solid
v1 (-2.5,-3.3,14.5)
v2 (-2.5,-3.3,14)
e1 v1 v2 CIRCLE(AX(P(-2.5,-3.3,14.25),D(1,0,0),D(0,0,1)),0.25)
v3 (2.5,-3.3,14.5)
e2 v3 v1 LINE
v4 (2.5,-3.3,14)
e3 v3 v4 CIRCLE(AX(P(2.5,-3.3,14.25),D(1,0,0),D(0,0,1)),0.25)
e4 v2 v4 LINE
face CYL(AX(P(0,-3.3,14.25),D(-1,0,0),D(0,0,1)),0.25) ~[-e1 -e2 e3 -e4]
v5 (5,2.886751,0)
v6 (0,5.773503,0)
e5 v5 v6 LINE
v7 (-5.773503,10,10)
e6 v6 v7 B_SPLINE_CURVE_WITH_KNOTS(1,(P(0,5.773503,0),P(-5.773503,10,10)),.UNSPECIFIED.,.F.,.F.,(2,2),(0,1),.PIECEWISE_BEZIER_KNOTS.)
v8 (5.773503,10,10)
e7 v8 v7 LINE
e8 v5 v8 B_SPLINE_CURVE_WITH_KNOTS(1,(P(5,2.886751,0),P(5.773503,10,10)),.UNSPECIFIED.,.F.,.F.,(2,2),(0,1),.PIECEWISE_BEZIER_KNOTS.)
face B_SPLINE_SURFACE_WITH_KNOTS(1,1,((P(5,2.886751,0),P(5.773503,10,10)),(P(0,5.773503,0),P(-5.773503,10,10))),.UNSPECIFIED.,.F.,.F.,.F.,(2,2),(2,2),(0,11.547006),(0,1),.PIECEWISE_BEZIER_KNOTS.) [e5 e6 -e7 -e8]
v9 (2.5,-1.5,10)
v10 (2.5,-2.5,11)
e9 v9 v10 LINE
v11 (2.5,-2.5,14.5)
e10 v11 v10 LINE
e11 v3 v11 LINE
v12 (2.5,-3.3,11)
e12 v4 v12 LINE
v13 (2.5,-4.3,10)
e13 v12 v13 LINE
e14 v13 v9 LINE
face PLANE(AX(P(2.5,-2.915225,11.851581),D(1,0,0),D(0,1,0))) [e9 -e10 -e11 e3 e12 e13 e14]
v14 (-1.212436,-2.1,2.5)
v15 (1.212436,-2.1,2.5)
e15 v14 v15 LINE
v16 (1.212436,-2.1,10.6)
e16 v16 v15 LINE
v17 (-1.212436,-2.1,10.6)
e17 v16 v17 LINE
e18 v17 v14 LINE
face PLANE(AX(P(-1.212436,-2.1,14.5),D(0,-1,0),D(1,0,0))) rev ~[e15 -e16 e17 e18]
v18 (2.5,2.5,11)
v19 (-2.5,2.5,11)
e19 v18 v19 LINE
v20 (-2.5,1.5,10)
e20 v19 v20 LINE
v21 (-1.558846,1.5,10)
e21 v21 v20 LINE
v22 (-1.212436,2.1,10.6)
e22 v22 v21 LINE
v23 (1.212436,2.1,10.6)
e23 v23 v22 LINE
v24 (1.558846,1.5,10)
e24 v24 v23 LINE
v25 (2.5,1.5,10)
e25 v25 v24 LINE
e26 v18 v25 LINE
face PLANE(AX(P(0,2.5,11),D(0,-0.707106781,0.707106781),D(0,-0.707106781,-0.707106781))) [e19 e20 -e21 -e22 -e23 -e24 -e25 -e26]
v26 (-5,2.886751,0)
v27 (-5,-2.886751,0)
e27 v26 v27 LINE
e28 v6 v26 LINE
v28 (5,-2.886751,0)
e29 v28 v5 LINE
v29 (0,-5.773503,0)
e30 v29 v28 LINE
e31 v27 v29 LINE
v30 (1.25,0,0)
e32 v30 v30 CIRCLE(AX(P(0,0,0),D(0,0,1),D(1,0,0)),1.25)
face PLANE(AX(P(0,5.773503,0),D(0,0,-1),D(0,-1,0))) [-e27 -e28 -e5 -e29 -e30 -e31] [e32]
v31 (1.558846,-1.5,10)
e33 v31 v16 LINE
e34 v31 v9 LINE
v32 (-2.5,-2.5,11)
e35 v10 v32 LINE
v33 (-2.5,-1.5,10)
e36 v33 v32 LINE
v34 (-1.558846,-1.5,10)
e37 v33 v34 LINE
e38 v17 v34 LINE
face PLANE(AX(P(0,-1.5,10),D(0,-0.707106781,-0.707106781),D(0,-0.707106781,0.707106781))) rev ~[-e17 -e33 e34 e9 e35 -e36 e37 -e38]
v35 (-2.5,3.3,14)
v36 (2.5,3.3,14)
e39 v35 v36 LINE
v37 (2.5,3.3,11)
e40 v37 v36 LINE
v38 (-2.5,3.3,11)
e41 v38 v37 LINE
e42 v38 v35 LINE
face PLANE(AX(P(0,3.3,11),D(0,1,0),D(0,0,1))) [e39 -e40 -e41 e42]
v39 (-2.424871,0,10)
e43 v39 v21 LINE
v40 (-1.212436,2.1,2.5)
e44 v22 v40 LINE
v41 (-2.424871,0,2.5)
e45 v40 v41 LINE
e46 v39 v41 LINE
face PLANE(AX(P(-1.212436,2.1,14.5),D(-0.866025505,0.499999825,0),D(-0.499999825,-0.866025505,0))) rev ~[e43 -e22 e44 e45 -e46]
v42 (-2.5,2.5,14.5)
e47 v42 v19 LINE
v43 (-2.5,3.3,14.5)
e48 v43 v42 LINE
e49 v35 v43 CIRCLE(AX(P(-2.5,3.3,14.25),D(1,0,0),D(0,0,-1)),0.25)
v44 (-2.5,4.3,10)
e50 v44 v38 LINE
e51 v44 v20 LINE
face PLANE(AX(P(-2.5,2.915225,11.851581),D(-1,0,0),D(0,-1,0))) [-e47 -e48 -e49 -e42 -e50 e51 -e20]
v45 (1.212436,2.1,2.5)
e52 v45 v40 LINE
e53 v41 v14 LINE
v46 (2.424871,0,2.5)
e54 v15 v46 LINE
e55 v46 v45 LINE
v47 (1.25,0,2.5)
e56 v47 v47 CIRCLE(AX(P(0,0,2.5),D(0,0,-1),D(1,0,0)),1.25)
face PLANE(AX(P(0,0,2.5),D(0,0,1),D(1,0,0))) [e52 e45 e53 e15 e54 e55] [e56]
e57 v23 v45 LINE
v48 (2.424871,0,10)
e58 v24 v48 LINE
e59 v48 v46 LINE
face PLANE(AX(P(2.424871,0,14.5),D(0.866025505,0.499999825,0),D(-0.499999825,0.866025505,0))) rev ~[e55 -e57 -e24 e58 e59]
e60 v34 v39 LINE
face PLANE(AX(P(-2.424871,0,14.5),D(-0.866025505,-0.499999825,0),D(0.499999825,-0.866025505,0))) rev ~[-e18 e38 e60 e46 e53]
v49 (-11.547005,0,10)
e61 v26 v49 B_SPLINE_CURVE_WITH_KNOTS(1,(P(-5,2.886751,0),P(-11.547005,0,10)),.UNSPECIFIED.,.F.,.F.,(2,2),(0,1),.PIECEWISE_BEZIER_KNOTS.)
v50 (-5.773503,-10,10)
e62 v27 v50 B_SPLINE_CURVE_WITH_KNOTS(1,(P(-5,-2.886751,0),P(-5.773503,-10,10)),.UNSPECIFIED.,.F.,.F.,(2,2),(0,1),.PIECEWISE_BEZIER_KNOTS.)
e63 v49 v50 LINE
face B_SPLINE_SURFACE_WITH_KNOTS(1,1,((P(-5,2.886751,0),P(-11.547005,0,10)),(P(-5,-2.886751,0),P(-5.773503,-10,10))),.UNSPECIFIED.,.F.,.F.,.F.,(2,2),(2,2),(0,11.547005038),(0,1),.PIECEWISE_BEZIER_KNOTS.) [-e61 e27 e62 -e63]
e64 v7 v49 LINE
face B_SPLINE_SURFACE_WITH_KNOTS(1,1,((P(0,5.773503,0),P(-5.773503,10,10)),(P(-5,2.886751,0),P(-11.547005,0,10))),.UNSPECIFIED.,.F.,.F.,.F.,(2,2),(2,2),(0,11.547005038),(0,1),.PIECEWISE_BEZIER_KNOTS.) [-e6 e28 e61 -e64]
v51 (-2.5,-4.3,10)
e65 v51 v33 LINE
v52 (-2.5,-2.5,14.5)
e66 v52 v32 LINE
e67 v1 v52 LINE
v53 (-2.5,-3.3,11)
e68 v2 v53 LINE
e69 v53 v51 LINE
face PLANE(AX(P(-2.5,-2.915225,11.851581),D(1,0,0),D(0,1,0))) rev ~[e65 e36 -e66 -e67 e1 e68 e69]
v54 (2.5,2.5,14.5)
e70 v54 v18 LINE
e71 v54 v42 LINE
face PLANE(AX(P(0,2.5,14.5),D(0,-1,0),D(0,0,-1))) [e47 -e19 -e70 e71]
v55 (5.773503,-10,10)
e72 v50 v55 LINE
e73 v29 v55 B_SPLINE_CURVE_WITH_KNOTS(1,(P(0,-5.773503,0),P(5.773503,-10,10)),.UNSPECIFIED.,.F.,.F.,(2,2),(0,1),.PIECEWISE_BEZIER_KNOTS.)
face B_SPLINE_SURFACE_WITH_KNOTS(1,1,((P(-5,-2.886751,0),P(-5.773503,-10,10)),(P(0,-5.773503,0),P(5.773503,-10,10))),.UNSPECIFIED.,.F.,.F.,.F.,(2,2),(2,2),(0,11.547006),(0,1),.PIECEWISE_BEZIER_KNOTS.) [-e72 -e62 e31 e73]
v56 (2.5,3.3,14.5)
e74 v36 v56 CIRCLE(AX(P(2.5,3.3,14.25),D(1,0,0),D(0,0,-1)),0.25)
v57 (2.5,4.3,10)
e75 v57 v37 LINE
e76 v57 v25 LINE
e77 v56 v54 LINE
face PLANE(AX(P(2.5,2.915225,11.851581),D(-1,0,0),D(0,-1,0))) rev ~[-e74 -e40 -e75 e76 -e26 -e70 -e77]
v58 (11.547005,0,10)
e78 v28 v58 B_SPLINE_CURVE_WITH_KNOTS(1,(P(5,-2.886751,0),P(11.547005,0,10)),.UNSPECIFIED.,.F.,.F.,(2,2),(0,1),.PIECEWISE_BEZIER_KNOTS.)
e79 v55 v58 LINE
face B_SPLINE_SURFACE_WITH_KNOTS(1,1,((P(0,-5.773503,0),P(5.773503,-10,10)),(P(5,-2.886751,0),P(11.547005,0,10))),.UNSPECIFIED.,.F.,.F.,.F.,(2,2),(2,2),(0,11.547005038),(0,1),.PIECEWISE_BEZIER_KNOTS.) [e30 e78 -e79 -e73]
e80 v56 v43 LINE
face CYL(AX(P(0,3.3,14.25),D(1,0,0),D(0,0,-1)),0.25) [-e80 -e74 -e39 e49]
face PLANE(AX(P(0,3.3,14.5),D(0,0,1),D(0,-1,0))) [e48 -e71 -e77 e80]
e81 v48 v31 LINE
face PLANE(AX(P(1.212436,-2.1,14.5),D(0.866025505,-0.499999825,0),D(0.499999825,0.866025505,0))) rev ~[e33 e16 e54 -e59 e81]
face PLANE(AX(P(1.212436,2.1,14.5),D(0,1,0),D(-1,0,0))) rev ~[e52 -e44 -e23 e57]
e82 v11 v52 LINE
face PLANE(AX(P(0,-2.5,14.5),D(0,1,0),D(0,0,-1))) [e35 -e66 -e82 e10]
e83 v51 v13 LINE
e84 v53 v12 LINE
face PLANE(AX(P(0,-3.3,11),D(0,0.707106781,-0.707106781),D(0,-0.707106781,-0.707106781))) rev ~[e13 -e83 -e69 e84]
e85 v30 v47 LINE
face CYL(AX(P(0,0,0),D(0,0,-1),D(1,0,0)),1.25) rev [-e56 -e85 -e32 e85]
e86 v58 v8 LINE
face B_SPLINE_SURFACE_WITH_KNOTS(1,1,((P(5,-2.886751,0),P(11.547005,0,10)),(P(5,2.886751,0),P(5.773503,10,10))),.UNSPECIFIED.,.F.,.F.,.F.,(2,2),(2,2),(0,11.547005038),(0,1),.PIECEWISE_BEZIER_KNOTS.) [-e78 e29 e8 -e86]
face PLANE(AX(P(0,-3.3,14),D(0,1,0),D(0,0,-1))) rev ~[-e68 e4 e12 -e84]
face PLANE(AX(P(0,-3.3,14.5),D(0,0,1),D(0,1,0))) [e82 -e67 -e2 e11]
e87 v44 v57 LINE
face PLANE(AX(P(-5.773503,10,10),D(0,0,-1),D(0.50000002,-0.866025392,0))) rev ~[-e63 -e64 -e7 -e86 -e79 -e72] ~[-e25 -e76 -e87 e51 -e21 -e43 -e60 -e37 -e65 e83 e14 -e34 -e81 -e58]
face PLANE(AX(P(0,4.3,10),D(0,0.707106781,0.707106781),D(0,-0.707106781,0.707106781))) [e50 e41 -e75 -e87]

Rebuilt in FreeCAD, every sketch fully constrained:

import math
import FreeCAD as App
import Part
import Sketcher
from FreeCAD import Vector
Q = App.Units.Quantity

doc = App.newDocument("Part")
body = doc.addObject("PartDesign::Body", "Body")

# Sketch on XY plane
sketch1 = body.newObject("Sketcher::SketchObject", "Sketch")
sketch1.AttachmentSupport = (doc.getObject("XY_Plane"), [""])
sketch1.MapMode = "FlatFace"
sketch1.addGeometry(Part.LineSegment(Vector(0, 5.773503, 0), Vector(-5, 2.886751, 0)), False)
sketch1.addGeometry(Part.LineSegment(Vector(-5, 2.886751, 0), Vector(-5, -2.886751, 0)), False)
sketch1.addGeometry(Part.LineSegment(Vector(-5, -2.886751, 0), Vector(0, -5.773503, 0)), False)
sketch1.addGeometry(Part.LineSegment(Vector(0, -5.773503, 0), Vector(5, -2.886751, 0)), False)
sketch1.addGeometry(Part.LineSegment(Vector(5, -2.886751, 0), Vector(5, 2.886751, 0)), False)
sketch1.addGeometry(Part.LineSegment(Vector(5, 2.886751, 0), Vector(0, 5.773503, 0)), False)
sketch1.addConstraint(Sketcher.Constraint("Coincident", 0, 2, 1, 1))
sketch1.addConstraint(Sketcher.Constraint("Coincident", 1, 2, 2, 1))
sketch1.addConstraint(Sketcher.Constraint("Coincident", 2, 2, 3, 1))
sketch1.addConstraint(Sketcher.Constraint("Coincident", 3, 2, 4, 1))
sketch1.addConstraint(Sketcher.Constraint("Coincident", 4, 2, 5, 1))
sketch1.addConstraint(Sketcher.Constraint("Coincident", 5, 2, 0, 1))
sketch1.addConstraint(Sketcher.Constraint("Vertical", 1))
sketch1.addConstraint(Sketcher.Constraint("Vertical", 4))
sketch1.addConstraint(Sketcher.Constraint("Symmetric", 0, 2, 3, 2, -1, 1))
sketch1.addConstraint(Sketcher.Constraint("Symmetric", 2, 2, 5, 2, -1, 1))
sketch1.addConstraint(Sketcher.Constraint("PointOnObject", 2, 2, -2))
sketch1.addConstraint(Sketcher.Constraint("Parallel", 2, 5))
sketch1.addConstraint(Sketcher.Constraint("Horizontal", 1, 2, 3, 2))
sketch1.addConstraint(Sketcher.Constraint("Angle", 0, Q("-149.999994 deg")))
sketch1.addConstraint(Sketcher.Constraint("DistanceX", 0, 2, -1, 1, 5.0))
sketch1.addConstraint(Sketcher.Constraint("DistanceY", 1, 2, 1, 1, 5.773502))

# Sketch on XY plane
sketch2 = body.newObject("Sketcher::SketchObject", "Sketch001")
sketch2.AttachmentSupport = (doc.getObject("XY_Plane"), [""])
sketch2.MapMode = "FlatFace"
sketch2.AttachmentOffset = App.Placement(Vector(0, 0, 10), App.Rotation())
sketch2.addGeometry(Part.LineSegment(Vector(-5.773503, 10, 0), Vector(-11.547005, 0, 0)), False)
sketch2.addGeometry(Part.LineSegment(Vector(-11.547005, 0, 0), Vector(-5.773503, -10, 0)), False)
sketch2.addGeometry(Part.LineSegment(Vector(-5.773503, -10, 0), Vector(5.773503, -10, 0)), False)
sketch2.addGeometry(Part.LineSegment(Vector(5.773503, -10, 0), Vector(11.547005, 0, 0)), False)
sketch2.addGeometry(Part.LineSegment(Vector(11.547005, 0, 0), Vector(5.773503, 10, 0)), False)
sketch2.addGeometry(Part.LineSegment(Vector(5.773503, 10, 0), Vector(-5.773503, 10, 0)), False)
sketch2.addConstraint(Sketcher.Constraint("Coincident", 0, 2, 1, 1))
sketch2.addConstraint(Sketcher.Constraint("Coincident", 1, 2, 2, 1))
sketch2.addConstraint(Sketcher.Constraint("Coincident", 2, 2, 3, 1))
sketch2.addConstraint(Sketcher.Constraint("Coincident", 3, 2, 4, 1))
sketch2.addConstraint(Sketcher.Constraint("Coincident", 4, 2, 5, 1))
sketch2.addConstraint(Sketcher.Constraint("Coincident", 5, 2, 0, 1))
sketch2.addConstraint(Sketcher.Constraint("Horizontal", 2))
sketch2.addConstraint(Sketcher.Constraint("Horizontal", 5))
sketch2.addConstraint(Sketcher.Constraint("Symmetric", 0, 2, 3, 2, -1, 1))
sketch2.addConstraint(Sketcher.Constraint("Symmetric", 1, 2, 4, 2, -1, 1))
sketch2.addConstraint(Sketcher.Constraint("PointOnObject", 0, 2, -1))
sketch2.addConstraint(Sketcher.Constraint("Parallel", 0, 3))
sketch2.addConstraint(Sketcher.Constraint("Vertical", 2, 2, 4, 2))
sketch2.addConstraint(Sketcher.Constraint("Angle", 0, Q("-119.999997 deg")))
sketch2.addConstraint(Sketcher.Constraint("DistanceY", 1, 2, -1, 1, 10.0))
sketch2.addConstraint(Sketcher.Constraint("DistanceX", 2, 1, 2, 2, 11.547006))

additiveloft = body.newObject("PartDesign::AdditiveLoft", "AdditiveLoft")
additiveloft.Profile = sketch1
additiveloft.Sections = [sketch2]

# Sketch on XY plane
sketch3 = body.newObject("Sketcher::SketchObject", "Sketch002")
sketch3.AttachmentSupport = (doc.getObject("XY_Plane"), [""])
sketch3.MapMode = "FlatFace"
sketch3.addGeometry(Part.Circle(Vector(0, 0, 0), Vector(0, 0, 1), 1.25), False)
sketch3.addConstraint(Sketcher.Constraint("Coincident", 0, 3, -1, 1))
sketch3.addConstraint(Sketcher.Constraint("Diameter", 0, 2.5))
pocket1 = body.newObject("PartDesign::Pocket", "Pocket")
pocket1.Profile = sketch3
pocket1.Type = "ThroughAll"
pocket1.Reversed = True

# Sketch on YZ plane
sketch4 = body.newObject("Sketcher::SketchObject", "Sketch003")
sketch4.AttachmentSupport = (doc.getObject("YZ_Plane"), [""])
sketch4.MapMode = "FlatFace"
sketch4.addGeometry(Part.ArcOfCircle(Part.Circle(Vector(-3.3, 14.25, 0), Vector(0, 0, 1), 0.25), math.radians(90), math.radians(270)), False)
sketch4.addGeometry(Part.LineSegment(Vector(-3.3, 14, 0), Vector(-3.3, 11, 0)), False)
sketch4.addGeometry(Part.LineSegment(Vector(-3.3, 11, 0), Vector(-4.3, 10, 0)), False)
sketch4.addGeometry(Part.LineSegment(Vector(-4.3, 10, 0), Vector(-1.5, 10, 0)), False)
sketch4.addGeometry(Part.LineSegment(Vector(-1.5, 10, 0), Vector(-2.5, 11, 0)), False)
sketch4.addGeometry(Part.LineSegment(Vector(-2.5, 11, 0), Vector(-2.5, 14.5, 0)), False)
sketch4.addGeometry(Part.LineSegment(Vector(-2.5, 14.5, 0), Vector(-3.3, 14.5, 0)), False)
sketch4.addGeometry(Part.LineSegment(Vector(1.5, 10, 0), Vector(4.3, 10, 0)), False)
sketch4.addGeometry(Part.LineSegment(Vector(4.3, 10, 0), Vector(3.3, 11, 0)), False)
sketch4.addGeometry(Part.LineSegment(Vector(3.3, 11, 0), Vector(3.3, 14, 0)), False)
sketch4.addGeometry(Part.ArcOfCircle(Part.Circle(Vector(3.3, 14.25, 0), Vector(0, 0, 1), 0.25), math.radians(-90), math.radians(90)), False)
sketch4.addGeometry(Part.LineSegment(Vector(3.3, 14.5, 0), Vector(2.5, 14.5, 0)), False)
sketch4.addGeometry(Part.LineSegment(Vector(2.5, 14.5, 0), Vector(2.5, 11, 0)), False)
sketch4.addGeometry(Part.LineSegment(Vector(2.5, 11, 0), Vector(1.5, 10, 0)), False)
sketch4.addConstraint(Sketcher.Constraint("Coincident", 0, 2, 1, 1))
sketch4.addConstraint(Sketcher.Constraint("Coincident", 1, 2, 2, 1))
sketch4.addConstraint(Sketcher.Constraint("Coincident", 2, 2, 3, 1))
sketch4.addConstraint(Sketcher.Constraint("Coincident", 3, 2, 4, 1))
sketch4.addConstraint(Sketcher.Constraint("Coincident", 4, 2, 5, 1))
sketch4.addConstraint(Sketcher.Constraint("Coincident", 5, 2, 6, 1))
sketch4.addConstraint(Sketcher.Constraint("Tangent", 6, 2, 0, 1))
sketch4.addConstraint(Sketcher.Constraint("Coincident", 7, 2, 8, 1))
sketch4.addConstraint(Sketcher.Constraint("Coincident", 8, 2, 9, 1))
sketch4.addConstraint(Sketcher.Constraint("Coincident", 9, 2, 10, 1))
sketch4.addConstraint(Sketcher.Constraint("Tangent", 10, 2, 11, 1))
sketch4.addConstraint(Sketcher.Constraint("Coincident", 11, 2, 12, 1))
sketch4.addConstraint(Sketcher.Constraint("Coincident", 12, 2, 13, 1))
sketch4.addConstraint(Sketcher.Constraint("Coincident", 13, 2, 7, 1))
sketch4.addConstraint(Sketcher.Constraint("Vertical", 1))
sketch4.addConstraint(Sketcher.Constraint("Horizontal", 3))
sketch4.addConstraint(Sketcher.Constraint("Vertical", 5))
sketch4.addConstraint(Sketcher.Constraint("Horizontal", 6))
sketch4.addConstraint(Sketcher.Constraint("Horizontal", 7))
sketch4.addConstraint(Sketcher.Constraint("Vertical", 9))
sketch4.addConstraint(Sketcher.Constraint("Horizontal", 11))
sketch4.addConstraint(Sketcher.Constraint("Vertical", 12))
sketch4.addConstraint(Sketcher.Constraint("Equal", 0, 10))
sketch4.addConstraint(Sketcher.Constraint("Symmetric", 0, 3, 10, 3, -2))
sketch4.addConstraint(Sketcher.Constraint("Symmetric", 2, 2, 7, 2, -2))
sketch4.addConstraint(Sketcher.Constraint("Symmetric", 1, 2, 8, 2, -2))
sketch4.addConstraint(Sketcher.Constraint("Symmetric", 4, 2, 12, 2, -2))
sketch4.addConstraint(Sketcher.Constraint("Perpendicular", 2, 4))
sketch4.addConstraint(Sketcher.Constraint("Parallel", 4, 8))
sketch4.addConstraint(Sketcher.Constraint("Perpendicular", 8, 13))
sketch4.addConstraint(Sketcher.Constraint("Horizontal", 1, 2, 4, 2))
sketch4.addConstraint(Sketcher.Constraint("Vertical", 1, 2, 6, 2))
sketch4.addConstraint(Sketcher.Constraint("DistanceY", 1, 2, 1, 1, 3.0))
sketch4.addConstraint(Sketcher.Constraint("Radius", 0, 0.25))
sketch4.addConstraint(Sketcher.Constraint("DistanceX", 3, 1, 3, 2, 2.8))
sketch4.addConstraint(Sketcher.Constraint("DistanceX", 6, 2, 6, 1, 0.8))
sketch4.addConstraint(Sketcher.Constraint("DistanceY", -1, 1, 0, 2, 14.0))
sketch4.addConstraint(Sketcher.Constraint("DistanceX", 3, 2, 13, 2, 3.0))
pad1 = body.newObject("PartDesign::Pad", "Pad")
pad1.Profile = sketch4
pad1.Length = 5
pad1.Midplane = True

# Sketch on XY plane
sketch5 = body.newObject("Sketcher::SketchObject", "Sketch004")
sketch5.AttachmentSupport = (doc.getObject("XY_Plane"), [""])
sketch5.MapMode = "FlatFace"
sketch5.AttachmentOffset = App.Placement(Vector(0, 0, 14.5), App.Rotation())
sketch5.addGeometry(Part.LineSegment(Vector(1.212436, 2.1, 0), Vector(-1.212436, 2.1, 0)), False)
sketch5.addGeometry(Part.LineSegment(Vector(-1.212436, 2.1, 0), Vector(-2.424871, 0, 0)), False)
sketch5.addGeometry(Part.LineSegment(Vector(-2.424871, 0, 0), Vector(-1.212436, -2.1, 0)), False)
sketch5.addGeometry(Part.LineSegment(Vector(-1.212436, -2.1, 0), Vector(1.212436, -2.1, 0)), False)
sketch5.addGeometry(Part.LineSegment(Vector(1.212436, -2.1, 0), Vector(2.424871, 0, 0)), False)
sketch5.addGeometry(Part.LineSegment(Vector(2.424871, 0, 0), Vector(1.212436, 2.1, 0)), False)
sketch5.addConstraint(Sketcher.Constraint("Coincident", 0, 2, 1, 1))
sketch5.addConstraint(Sketcher.Constraint("Coincident", 1, 2, 2, 1))
sketch5.addConstraint(Sketcher.Constraint("Coincident", 2, 2, 3, 1))
sketch5.addConstraint(Sketcher.Constraint("Coincident", 3, 2, 4, 1))
sketch5.addConstraint(Sketcher.Constraint("Coincident", 4, 2, 5, 1))
sketch5.addConstraint(Sketcher.Constraint("Coincident", 5, 2, 0, 1))
sketch5.addConstraint(Sketcher.Constraint("Horizontal", 0))
sketch5.addConstraint(Sketcher.Constraint("Horizontal", 3))
sketch5.addConstraint(Sketcher.Constraint("Symmetric", 0, 2, 3, 2, -1, 1))
sketch5.addConstraint(Sketcher.Constraint("Symmetric", 1, 2, 4, 2, -1, 1))
sketch5.addConstraint(Sketcher.Constraint("PointOnObject", 1, 2, -1))
sketch5.addConstraint(Sketcher.Constraint("Parallel", 2, 5))
sketch5.addConstraint(Sketcher.Constraint("Vertical", 0, 2, 2, 2))
sketch5.addConstraint(Sketcher.Constraint("Angle", 1, Q("-119.999988 deg")))
sketch5.addConstraint(Sketcher.Constraint("DistanceY", -1, 1, 0, 2, 2.1))
sketch5.addConstraint(Sketcher.Constraint("DistanceX", 0, 2, 0, 1, 2.424872))
pocket2 = body.newObject("PartDesign::Pocket", "Pocket001")
pocket2.Profile = sketch5
pocket2.Length = 12

doc.recompute()
